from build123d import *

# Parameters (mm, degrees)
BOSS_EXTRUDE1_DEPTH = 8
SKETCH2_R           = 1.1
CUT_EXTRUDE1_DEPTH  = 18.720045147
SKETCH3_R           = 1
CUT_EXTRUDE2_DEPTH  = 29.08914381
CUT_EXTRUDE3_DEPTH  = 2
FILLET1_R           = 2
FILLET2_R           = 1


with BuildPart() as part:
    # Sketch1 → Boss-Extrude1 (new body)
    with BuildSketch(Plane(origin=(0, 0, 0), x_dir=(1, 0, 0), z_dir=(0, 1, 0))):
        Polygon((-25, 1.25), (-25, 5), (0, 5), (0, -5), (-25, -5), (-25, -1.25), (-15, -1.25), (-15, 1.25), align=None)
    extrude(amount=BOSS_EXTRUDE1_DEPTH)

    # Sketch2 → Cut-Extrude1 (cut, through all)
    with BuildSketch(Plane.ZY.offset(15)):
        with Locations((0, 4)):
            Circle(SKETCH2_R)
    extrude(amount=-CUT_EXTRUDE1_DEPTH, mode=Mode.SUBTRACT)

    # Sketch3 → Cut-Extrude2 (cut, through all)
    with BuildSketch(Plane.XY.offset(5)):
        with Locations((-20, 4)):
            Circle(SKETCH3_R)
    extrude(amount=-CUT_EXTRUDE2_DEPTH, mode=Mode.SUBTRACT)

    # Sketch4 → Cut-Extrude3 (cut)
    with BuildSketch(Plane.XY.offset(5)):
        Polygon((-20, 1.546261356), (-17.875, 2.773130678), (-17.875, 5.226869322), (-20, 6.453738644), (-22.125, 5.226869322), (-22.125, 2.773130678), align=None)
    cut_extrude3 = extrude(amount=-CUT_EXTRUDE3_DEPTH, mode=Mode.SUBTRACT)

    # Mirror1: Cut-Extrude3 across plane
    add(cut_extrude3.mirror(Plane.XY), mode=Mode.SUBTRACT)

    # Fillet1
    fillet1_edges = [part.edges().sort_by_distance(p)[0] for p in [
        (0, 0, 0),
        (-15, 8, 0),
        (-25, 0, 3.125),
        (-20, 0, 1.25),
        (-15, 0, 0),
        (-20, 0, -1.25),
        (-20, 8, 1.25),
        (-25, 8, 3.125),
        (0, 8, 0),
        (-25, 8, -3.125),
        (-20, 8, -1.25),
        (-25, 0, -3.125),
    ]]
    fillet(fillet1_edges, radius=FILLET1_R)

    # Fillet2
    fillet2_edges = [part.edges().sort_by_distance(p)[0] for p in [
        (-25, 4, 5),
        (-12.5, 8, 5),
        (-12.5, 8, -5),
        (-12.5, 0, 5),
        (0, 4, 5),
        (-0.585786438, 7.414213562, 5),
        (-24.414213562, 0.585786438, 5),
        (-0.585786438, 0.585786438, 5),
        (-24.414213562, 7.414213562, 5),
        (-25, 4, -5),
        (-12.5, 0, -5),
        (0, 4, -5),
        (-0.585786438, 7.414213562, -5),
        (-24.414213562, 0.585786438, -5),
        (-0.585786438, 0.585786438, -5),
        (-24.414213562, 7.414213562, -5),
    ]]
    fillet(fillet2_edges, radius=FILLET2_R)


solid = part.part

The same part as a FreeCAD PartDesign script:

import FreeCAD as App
import Part
import Sketcher

V = App.Vector
Q = App.Units.Quantity


def edges_at(feature, points):
    """Names of the edges that pass closest to the given points."""
    edges = feature.Shape.Edges
    near = lambda p: min(range(len(edges)), key=lambda i: edges[i].distToShape(Part.Vertex(*p))[0])
    return sorted({f"Edge{near(p) + 1}" for p in points})


def add_polygon(sketch, points):
    """Adds a closed chain of lines whose ends are joined by coincident constraints."""
    first, n = sketch.GeometryCount, len(points)
    for a, b in zip(points, points[1:] + points[:1]):
        sketch.addGeometry(Part.LineSegment(App.Vector(*a, 0), App.Vector(*b, 0)), False)
    for i in range(n):
        sketch.addConstraint(Sketcher.Constraint("Coincident", first + i, 2, first + (i + 1) % n, 1))

doc = App.newDocument("Part")
body = doc.addObject("PartDesign::Body", "Body")

# Sketch on XZ plane
sketch1 = body.newObject("Sketcher::SketchObject", "Sketch")
sketch1.AttachmentSupport = (doc.getObject("XZ_Plane"), [""])
sketch1.MapMode = "FlatFace"
add_polygon(sketch1, [(-25, -5), (-25, -1.2), (-15, -1.2), (-15, 1.2), (-25, 1.2), (-25, 5), (0, 5), (0, -5)])  # lines 0-7
sketch1.addConstraint(Sketcher.Constraint("Vertical", 0))
sketch1.addConstraint(Sketcher.Constraint("Horizontal", 1))
sketch1.addConstraint(Sketcher.Constraint("Vertical", 2))
sketch1.addConstraint(Sketcher.Constraint("Horizontal", 3))
sketch1.addConstraint(Sketcher.Constraint("Vertical", 4))
sketch1.addConstraint(Sketcher.Constraint("Horizontal", 5))
sketch1.addConstraint(Sketcher.Constraint("Vertical", 6))
sketch1.addConstraint(Sketcher.Constraint("Horizontal", 7))
sketch1.addConstraint(Sketcher.Constraint("Symmetric", 5, 2, 6, 2, -1, 1))
sketch1.addConstraint(Sketcher.Constraint("Symmetric", 0, 2, 3, 2, -1))
sketch1.addConstraint(Sketcher.Constraint("Equal", 3, 6))
sketch1.addConstraint(Sketcher.Constraint("DistanceX", 1, 1, 1, 2, Q("10 mm")))
sketch1.addConstraint(Sketcher.Constraint("DistanceX", 5, 1, 5, 2, Q("25 mm")))
sketch1.addConstraint(Sketcher.Constraint("DistanceY", 2, 1, 2, 2, Q("2.5 mm")))
pad1 = body.newObject("PartDesign::Pad", "Pad")
pad1.Profile = sketch1
pad1.Length = 8
pad1.Reversed = True

# Sketch on YZ plane
sketch2 = body.newObject("Sketcher::SketchObject", "Sketch001")
sketch2.AttachmentSupport = (doc.getObject("YZ_Plane"), [""])
sketch2.MapMode = "FlatFace"
sketch2.AttachmentOffset = App.Placement(V(0, 0, -15), App.Rotation())
sketch2.addGeometry(Part.Circle(V(4, 0, 0), V(0, 0, 1), 1.1), False)
sketch2.addConstraint(Sketcher.Constraint("PointOnObject", 0, 3, -1))
sketch2.addConstraint(Sketcher.Constraint("Diameter", 0, Q("2.2 mm")))
sketch2.addConstraint(Sketcher.Constraint("DistanceX", -1, 1, 0, 3, Q("4 mm")))
pocket1 = body.newObject("PartDesign::Pocket", "Pocket")
pocket1.Profile = sketch2
pocket1.Type = "ThroughAll"
pocket1.Reversed = True

# Sketch on XY plane
sketch3 = body.newObject("Sketcher::SketchObject", "Sketch002")
sketch3.AttachmentSupport = (doc.getObject("XY_Plane"), [""])
sketch3.MapMode = "FlatFace"
sketch3.AttachmentOffset = App.Placement(V(0, 0, 5), App.Rotation())
sketch3.addGeometry(Part.Circle(V(-20, 4, 0), V(0, 0, 1), 1), False)
sketch3.addConstraint(Sketcher.Constraint("Diameter", 0, Q("2 mm")))
sketch3.addConstraint(Sketcher.Constraint("DistanceX", 0, 3, -1, 1, Q("20 mm")))
sketch3.addConstraint(Sketcher.Constraint("DistanceY", -1, 1, 0, 3, Q("4 mm")))
pocket2 = body.newObject("PartDesign::Pocket", "Pocket001")
pocket2.Profile = sketch3
pocket2.Type = "ThroughAll"

# Sketch on XY plane
sketch4 = body.newObject("Sketcher::SketchObject", "Sketch003")
sketch4.AttachmentSupport = (doc.getObject("XY_Plane"), [""])
sketch4.MapMode = "FlatFace"
sketch4.AttachmentOffset = App.Placement(V(0, 0, 5), App.Rotation())
add_polygon(sketch4, [(-20, 1.5), (-17.9, 2.8), (-17.9, 5.2), (-20, 6.5), (-22.1, 5.2), (-22.1, 2.8)])  # lines 0-5
sketch4.addConstraint(Sketcher.Constraint("Vertical", 1))
sketch4.addConstraint(Sketcher.Constraint("Vertical", 4))
sketch4.addConstraint(Sketcher.Constraint("Parallel", 0, 3))
sketch4.addConstraint(Sketcher.Constraint("Parallel", 2, 5))
sketch4.addConstraint(Sketcher.Constraint("Horizontal", 1, 2, 3, 2))
sketch4.addConstraint(Sketcher.Constraint("Horizontal", 0, 2, 4, 2))
sketch4.addConstraint(Sketcher.Constraint("Vertical", 2, 2, 5, 2))
sketch4.addConstraint(Sketcher.Constraint("Angle", 0, Q("30 deg")))
sketch4.addConstraint(Sketcher.Constraint("DistanceX", 2, 2, -1, 1, Q("20 mm")))
sketch4.addConstraint(Sketcher.Constraint("DistanceX", 3, 2, 1, 2, Q("4.25 mm")))
sketch4.addConstraint(Sketcher.Constraint("DistanceY", 1, 1, 1, 2, Q("2.453739 mm")))
sketch4.addConstraint(Sketcher.Constraint("DistanceY", -1, 1, 0, 2, Q("2.773131 mm")))
pocket3 = body.newObject("PartDesign::Pocket", "Pocket002")
pocket3.Profile = sketch4
pocket3.Length = 2
doc.recompute()

mirrored = body.newObject("PartDesign::Mirrored", "Mirrored")
mirrored.Originals = [pocket3]
mirrored.MirrorPlane = (doc.getObject("XY_Plane"), [""])
body.Tip = mirrored
doc.recompute()

fillet = body.newObject("PartDesign::Fillet", "Fillet")
fillet.Base = (mirrored, edges_at(mirrored, [
    (0, 0, 0),
    (-15, 8, 0),
    (-25, 0, 3.125),
    (-20, 0, 1.25),
    (-15, 0, 0),
    (-20, 0, -1.25),
    (-20, 8, 1.25),
    (-25, 8, 3.125),
    (0, 8, 0),
    (-25, 8, -3.125),
    (-20, 8, -1.25),
    (-25, 0, -3.125),
]))
fillet.Radius = 2
doc.recompute()

fillet2 = body.newObject("PartDesign::Fillet", "Fillet001")
fillet2.Base = (fillet, edges_at(fillet, [
    (-25, 4, 5),
    (-12.5, 8, 5),
    (-12.5, 8, -5),
    (-12.5, 0, 5),
    (0, 4, 5),
    (-0.586, 7.414, 5),
    (-24.414, 0.586, 5),
    (-0.586, 0.586, 5),
    (-24.414, 7.414, 5),
    (-25, 4, -5),
    (-12.5, 0, -5),
    (0, 4, -5),
    (-0.586, 7.414, -5),
    (-24.414, 0.586, -5),
    (-0.586, 0.586, -5),
    (-24.414, 7.414, -5),
]))
fillet2.Radius = 1

doc.recompute()
